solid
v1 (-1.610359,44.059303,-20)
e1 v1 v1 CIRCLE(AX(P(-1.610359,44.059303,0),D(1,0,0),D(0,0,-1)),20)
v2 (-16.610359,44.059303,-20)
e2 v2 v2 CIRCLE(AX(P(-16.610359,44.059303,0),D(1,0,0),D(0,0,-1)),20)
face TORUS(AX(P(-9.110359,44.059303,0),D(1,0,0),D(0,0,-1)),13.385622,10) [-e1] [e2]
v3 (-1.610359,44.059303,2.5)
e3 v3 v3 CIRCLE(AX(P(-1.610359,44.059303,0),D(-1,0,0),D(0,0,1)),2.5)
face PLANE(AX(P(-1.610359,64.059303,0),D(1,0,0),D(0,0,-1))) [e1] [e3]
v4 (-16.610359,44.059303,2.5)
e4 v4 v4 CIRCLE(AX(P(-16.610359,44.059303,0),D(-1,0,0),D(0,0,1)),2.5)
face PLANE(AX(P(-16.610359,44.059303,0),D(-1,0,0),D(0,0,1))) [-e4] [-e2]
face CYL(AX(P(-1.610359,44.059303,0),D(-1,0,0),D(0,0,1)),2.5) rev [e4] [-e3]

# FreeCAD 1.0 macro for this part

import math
import FreeCAD as App
import Part
import Sketcher
from FreeCAD import Vector

doc = App.newDocument("Part")
body = doc.addObject("PartDesign::Body", "Body")

# Sketch on XY plane
sketch1 = body.newObject("Sketcher::SketchObject", "Sketch")
sketch1.AttachmentSupport = (doc.getObject("XY_Plane"), [""])
sketch1.MapMode = "FlatFace"
sketch1.addGeometry(Part.LineSegment(Vector(-17, 64, 0), Vector(-17, 44, 0)), False)
sketch1.addGeometry(Part.LineSegment(Vector(-17, 44, 0), Vector(-2, 44, 0)), False)
sketch1.addGeometry(Part.LineSegment(Vector(-2, 44, 0), Vector(-2, 64, 0)), False)
sketch1.addGeometry(Part.ArcOfCircle(Part.Circle(Vector(-9, 57, 0), Vector(0, 0, 1), 10), math.radians(41), math.radians(139)), False)
sketch1.addGeometry(Part.LineSegment(Vector(-2, 44, 0), Vector(-17, 44, 0)), True)  # axis
sketch1.addConstraint(Sketcher.Constraint("Coincident", 0, 2, 1, 1))
sketch1.addConstraint(Sketcher.Constraint("Coincident", 1, 2, 2, 1))
sketch1.addConstraint(Sketcher.Constraint("Coincident", 2, 2, 3, 1))
sketch1.addConstraint(Sketcher.Constraint("Coincident", 3, 2, 0, 1))
sketch1.addConstraint(Sketcher.Constraint("Vertical", 0))
sketch1.addConstraint(Sketcher.Constraint("Horizontal", 1))
sketch1.addConstraint(Sketcher.Constraint("Vertical", 2))
sketch1.addConstraint(Sketcher.Constraint("Horizontal", 4))
sketch1.addConstraint(Sketcher.Constraint("Coincident", 4, 1, 1, 2))
sketch1.addConstraint(Sketcher.Constraint("Horizontal", 2, 2, 3, 2))
sketch1.addConstraint(Sketcher.Constraint("Vertical", 3, 2, 4, 2))
sketch1.addConstraint(Sketcher.Constraint("Radius", 3, 10.0))
sketch1.addConstraint(Sketcher.Constraint("DistanceX", 1, 1, 1, 2, 15.0))
sketch1.addConstraint(Sketcher.Constraint("DistanceY", 0, 2, 0, 1, 20.0))
sketch1.addConstraint(Sketcher.Constraint("DistanceX", 3, 3, -1, 1, 9.110359))
sketch1.addConstraint(Sketcher.Constraint("DistanceY", -1, 1, 3, 3, 57.444924))
revolution = body.newObject("PartDesign::Revolution", "Revolution")
revolution.Profile = sketch1
revolution.ReferenceAxis = (sketch1, ["Axis0"])
revolution.Angle = 360

# Sketch on YZ plane
sketch2 = body.newObject("Sketcher::SketchObject", "Sketch001")
sketch2.AttachmentSupport = (doc.getObject("YZ_Plane"), [""])
sketch2.MapMode = "FlatFace"
sketch2.AttachmentOffset = App.Placement(Vector(0, 0, -16.610359), App.Rotation())
sketch2.addGeometry(Part.Circle(Vector(44.1, 0, 0), Vector(0, 0, 1), 2.5), False)
sketch2.addConstraint(Sketcher.Constraint("PointOnObject", 0, 3, -1))
sketch2.addConstraint(Sketcher.Constraint("Diameter", 0, 5.0))
sketch2.addConstraint(Sketcher.Constraint("DistanceX", -1, 1, 0, 3, 44.059303))
pocket1 = body.newObject("PartDesign::Pocket", "Pocket")
pocket1.Profile = sketch2
pocket1.Type = "ThroughAll"
pocket1.Reversed = True

doc.recompute()
